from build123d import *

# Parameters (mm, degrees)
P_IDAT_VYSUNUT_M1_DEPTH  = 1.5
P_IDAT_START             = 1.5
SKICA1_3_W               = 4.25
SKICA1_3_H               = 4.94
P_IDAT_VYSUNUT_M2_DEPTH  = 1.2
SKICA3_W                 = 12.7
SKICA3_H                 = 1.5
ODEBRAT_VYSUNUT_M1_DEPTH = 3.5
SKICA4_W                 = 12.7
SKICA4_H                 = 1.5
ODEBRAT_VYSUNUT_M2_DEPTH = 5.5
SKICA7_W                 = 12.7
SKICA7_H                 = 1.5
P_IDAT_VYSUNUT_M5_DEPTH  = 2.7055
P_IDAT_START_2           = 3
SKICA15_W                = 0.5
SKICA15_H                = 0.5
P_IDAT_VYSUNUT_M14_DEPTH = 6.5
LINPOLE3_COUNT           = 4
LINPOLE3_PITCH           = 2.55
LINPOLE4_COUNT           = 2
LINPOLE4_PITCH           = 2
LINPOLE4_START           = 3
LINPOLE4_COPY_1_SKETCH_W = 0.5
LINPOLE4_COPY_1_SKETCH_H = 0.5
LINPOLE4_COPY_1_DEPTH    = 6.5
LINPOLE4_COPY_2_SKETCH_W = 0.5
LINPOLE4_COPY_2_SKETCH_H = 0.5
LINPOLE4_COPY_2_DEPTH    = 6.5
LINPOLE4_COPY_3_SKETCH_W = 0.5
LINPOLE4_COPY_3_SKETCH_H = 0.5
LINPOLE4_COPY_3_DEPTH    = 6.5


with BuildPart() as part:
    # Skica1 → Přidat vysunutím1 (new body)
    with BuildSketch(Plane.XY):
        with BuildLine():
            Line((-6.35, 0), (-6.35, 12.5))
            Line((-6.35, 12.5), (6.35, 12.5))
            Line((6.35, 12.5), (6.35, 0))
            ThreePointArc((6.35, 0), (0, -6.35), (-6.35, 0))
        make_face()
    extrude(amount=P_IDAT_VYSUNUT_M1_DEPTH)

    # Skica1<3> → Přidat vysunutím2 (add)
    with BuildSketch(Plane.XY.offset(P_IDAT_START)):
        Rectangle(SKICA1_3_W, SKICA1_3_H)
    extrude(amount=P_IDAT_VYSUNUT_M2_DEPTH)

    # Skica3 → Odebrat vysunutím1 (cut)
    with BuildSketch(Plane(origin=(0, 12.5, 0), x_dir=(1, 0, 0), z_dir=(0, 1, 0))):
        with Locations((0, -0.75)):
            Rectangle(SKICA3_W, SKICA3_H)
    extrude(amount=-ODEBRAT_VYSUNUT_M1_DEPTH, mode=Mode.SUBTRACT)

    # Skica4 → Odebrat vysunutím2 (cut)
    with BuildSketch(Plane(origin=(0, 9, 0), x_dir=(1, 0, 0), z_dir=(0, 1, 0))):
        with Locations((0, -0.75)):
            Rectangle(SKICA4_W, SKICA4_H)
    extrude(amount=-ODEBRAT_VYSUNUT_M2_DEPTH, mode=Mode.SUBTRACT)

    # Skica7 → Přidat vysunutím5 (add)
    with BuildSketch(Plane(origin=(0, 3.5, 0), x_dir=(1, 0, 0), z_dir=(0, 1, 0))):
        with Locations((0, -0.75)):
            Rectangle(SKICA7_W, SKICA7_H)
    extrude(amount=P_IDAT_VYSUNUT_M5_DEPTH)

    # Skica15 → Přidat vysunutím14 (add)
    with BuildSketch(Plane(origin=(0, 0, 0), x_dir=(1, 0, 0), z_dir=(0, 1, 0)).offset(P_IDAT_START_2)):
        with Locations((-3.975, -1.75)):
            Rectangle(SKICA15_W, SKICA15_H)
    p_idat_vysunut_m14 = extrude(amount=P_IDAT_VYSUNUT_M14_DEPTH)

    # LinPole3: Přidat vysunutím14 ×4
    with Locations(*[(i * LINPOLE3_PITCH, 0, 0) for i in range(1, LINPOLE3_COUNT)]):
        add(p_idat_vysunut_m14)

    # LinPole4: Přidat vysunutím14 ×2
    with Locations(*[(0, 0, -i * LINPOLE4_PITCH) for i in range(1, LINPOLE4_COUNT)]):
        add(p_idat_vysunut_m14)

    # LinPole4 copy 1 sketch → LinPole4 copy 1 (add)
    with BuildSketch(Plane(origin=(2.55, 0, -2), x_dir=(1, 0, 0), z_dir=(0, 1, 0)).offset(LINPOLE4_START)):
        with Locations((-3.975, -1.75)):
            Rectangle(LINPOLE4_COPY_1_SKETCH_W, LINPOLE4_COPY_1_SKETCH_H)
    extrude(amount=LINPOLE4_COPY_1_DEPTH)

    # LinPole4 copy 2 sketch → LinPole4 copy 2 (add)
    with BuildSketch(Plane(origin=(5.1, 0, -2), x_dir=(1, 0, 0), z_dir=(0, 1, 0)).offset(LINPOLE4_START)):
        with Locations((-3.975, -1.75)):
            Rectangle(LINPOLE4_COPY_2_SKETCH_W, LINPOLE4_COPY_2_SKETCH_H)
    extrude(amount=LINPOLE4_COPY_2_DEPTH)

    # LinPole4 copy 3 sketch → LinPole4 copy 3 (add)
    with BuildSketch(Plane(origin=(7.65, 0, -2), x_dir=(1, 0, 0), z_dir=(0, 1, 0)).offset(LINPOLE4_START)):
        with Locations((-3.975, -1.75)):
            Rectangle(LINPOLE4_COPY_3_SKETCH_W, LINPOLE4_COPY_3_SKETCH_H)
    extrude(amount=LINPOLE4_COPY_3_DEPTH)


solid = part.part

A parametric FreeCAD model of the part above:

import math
import FreeCAD as App
import Part
import Sketcher
from FreeCAD import Vector
Q = App.Units.Quantity

doc = App.newDocument("Part")
body = doc.addObject("PartDesign::Body", "Body")

# Sketch on XY plane
sketch1 = body.newObject("Sketcher::SketchObject", "Sketch")
sketch1.AttachmentSupport = (doc.getObject("XY_Plane"), [""])
sketch1.MapMode = "FlatFace"
sketch1.addGeometry(Part.LineSegment(Vector(-6, 12, 0), Vector(-6, 0, 0)), False)
sketch1.addGeometry(Part.ArcOfCircle(Part.Circle(Vector(0, 0, 0), Vector(0, 0, 1), 6), math.radians(180), math.radians(360)), False)
sketch1.addGeometry(Part.LineSegment(Vector(6, 0, 0), Vector(6, 12, 0)), False)
sketch1.addGeometry(Part.LineSegment(Vector(6, 12, 0), Vector(-6, 12, 0)), False)
sketch1.addConstraint(Sketcher.Constraint("Tangent", 0, 2, 1, 1))
sketch1.addConstraint(Sketcher.Constraint("Tangent", 1, 2, 2, 1))
sketch1.addConstraint(Sketcher.Constraint("Coincident", 2, 2, 3, 1))
sketch1.addConstraint(Sketcher.Constraint("Coincident", 3, 2, 0, 1))
sketch1.addConstraint(Sketcher.Constraint("Vertical", 0))
sketch1.addConstraint(Sketcher.Constraint("Vertical", 2))
sketch1.addConstraint(Sketcher.Constraint("Horizontal", 3))
sketch1.addConstraint(Sketcher.Constraint("Coincident", 1, 3, -1, 1))
sketch1.addConstraint(Sketcher.Constraint("Radius", 1, Q("6.35 mm")))
sketch1.addConstraint(Sketcher.Constraint("DistanceY", 0, 2, 0, 1, Q("12.5 mm")))
pad1 = body.newObject("PartDesign::Pad", "Pad")
pad1.Profile = sketch1
pad1.Length = 1.5

# Sketch on XY plane
sketch2 = body.newObject("Sketcher::SketchObject", "Sketch001")
sketch2.AttachmentSupport = (doc.getObject("XY_Plane"), [""])
sketch2.MapMode = "FlatFace"
sketch2.AttachmentOffset = App.Placement(Vector(0, 0, 1.5), App.Rotation())
sketch2.addGeometry(Part.LineSegment(Vector(-2.1, 2.5, 0), Vector(-2.1, -2.5, 0)), False)
sketch2.addGeometry(Part.LineSegment(Vector(-2.1, -2.5, 0), Vector(2.1, -2.5, 0)), False)
sketch2.addGeometry(Part.LineSegment(Vector(2.1, -2.5, 0), Vector(2.1, 2.5, 0)), False)
sketch2.addGeometry(Part.LineSegment(Vector(2.1, 2.5, 0), Vector(-2.1, 2.5, 0)), False)
sketch2.addConstraint(Sketcher.Constraint("Coincident", 0, 2, 1, 1))
sketch2.addConstraint(Sketcher.Constraint("Coincident", 1, 2, 2, 1))
sketch2.addConstraint(Sketcher.Constraint("Coincident", 2, 2, 3, 1))
sketch2.addConstraint(Sketcher.Constraint("Coincident", 3, 2, 0, 1))
sketch2.addConstraint(Sketcher.Constraint("Vertical", 0))
sketch2.addConstraint(Sketcher.Constraint("Horizontal", 1))
sketch2.addConstraint(Sketcher.Constraint("Vertical", 2))
sketch2.addConstraint(Sketcher.Constraint("Horizontal", 3))
sketch2.addConstraint(Sketcher.Constraint("Symmetric", 0, 2, 2, 2, -1, 1))
sketch2.addConstraint(Sketcher.Constraint("DistanceX", 1, 1, 1, 2, Q("4.25 mm")))
sketch2.addConstraint(Sketcher.Constraint("DistanceY", 0, 2, 0, 1, Q("4.94 mm")))
pad2 = body.newObject("PartDesign::Pad", "Pad001")
pad2.Profile = sketch2
pad2.Length = 1.2

# Sketch on XZ plane
sketch3 = body.newObject("Sketcher::SketchObject", "Sketch002")
sketch3.AttachmentSupport = (doc.getObject("XZ_Plane"), [""])
sketch3.MapMode = "FlatFace"
sketch3.AttachmentOffset = App.Placement(Vector(0, 0, -12.5), App.Rotation())
sketch3.addGeometry(Part.LineSegment(Vector(-6.3, 0, 0), Vector(-6.3, 1.5, 0)), False)
sketch3.addGeometry(Part.LineSegment(Vector(-6.3, 1.5, 0), Vector(6.3, 1.5, 0)), False)
sketch3.addGeometry(Part.LineSegment(Vector(6.3, 1.5, 0), Vector(6.3, 0, 0)), False)
sketch3.addGeometry(Part.LineSegment(Vector(6.3, 0, 0), Vector(-6.3, 0, 0)), False)
sketch3.addConstraint(Sketcher.Constraint("Coincident", 0, 2, 1, 1))
sketch3.addConstraint(Sketcher.Constraint("Coincident", 1, 2, 2, 1))
sketch3.addConstraint(Sketcher.Constraint("Coincident", 2, 2, 3, 1))
sketch3.addConstraint(Sketcher.Constraint("Coincident", 3, 2, 0, 1))
sketch3.addConstraint(Sketcher.Constraint("Vertical", 0))
sketch3.addConstraint(Sketcher.Constraint("Horizontal", 1))
sketch3.addConstraint(Sketcher.Constraint("Vertical", 2))
sketch3.addConstraint(Sketcher.Constraint("Horizontal", 3))
sketch3.addConstraint(Sketcher.Constraint("Symmetric", 2, 2, 3, 2, -1, 1))
sketch3.addConstraint(Sketcher.Constraint("DistanceX", 1, 1, 1, 2, Q("12.7 mm")))
sketch3.addConstraint(Sketcher.Constraint("DistanceY", 0, 1, 0, 2, Q("1.5 mm")))
pocket1 = body.newObject("PartDesign::Pocket", "Pocket")
pocket1.Profile = sketch3
pocket1.Length = 3.5
pocket1.Reversed = True

# Sketch on XZ plane
sketch4 = body.newObject("Sketcher::SketchObject", "Sketch003")
sketch4.AttachmentSupport = (doc.getObject("XZ_Plane"), [""])
sketch4.MapMode = "FlatFace"
sketch4.AttachmentOffset = App.Placement(Vector(0, 0, -9), App.Rotation())
sketch4.addGeometry(Part.LineSegment(Vector(-6.3, 0, 0), Vector(-6.3, 1.5, 0)), False)
sketch4.addGeometry(Part.LineSegment(Vector(-6.3, 1.5, 0), Vector(6.3, 1.5, 0)), False)
sketch4.addGeometry(Part.LineSegment(Vector(6.3, 1.5, 0), Vector(6.3, 0, 0)), False)
sketch4.addGeometry(Part.LineSegment(Vector(6.3, 0, 0), Vector(-6.3, 0, 0)), False)
sketch4.addConstraint(Sketcher.Constraint("Coincident", 0, 2, 1, 1))
sketch4.addConstraint(Sketcher.Constraint("Coincident", 1, 2, 2, 1))
sketch4.addConstraint(Sketcher.Constraint("Coincident", 2, 2, 3, 1))
sketch4.addConstraint(Sketcher.Constraint("Coincident", 3, 2, 0, 1))
sketch4.addConstraint(Sketcher.Constraint("Vertical", 0))
sketch4.addConstraint(Sketcher.Constraint("Horizontal", 1))
sketch4.addConstraint(Sketcher.Constraint("Vertical", 2))
sketch4.addConstraint(Sketcher.Constraint("Horizontal", 3))
sketch4.addConstraint(Sketcher.Constraint("Symmetric", 2, 2, 3, 2, -1, 1))
sketch4.addConstraint(Sketcher.Constraint("DistanceX", 1, 1, 1, 2, Q("12.7 mm")))
sketch4.addConstraint(Sketcher.Constraint("DistanceY", 0, 1, 0, 2, Q("1.5 mm")))
pocket2 = body.newObject("PartDesign::Pocket", "Pocket001")
pocket2.Profile = sketch4
pocket2.Length = 5.5
pocket2.Reversed = True

# Sketch on XZ plane
sketch5 = body.newObject("Sketcher::SketchObject", "Sketch004")
sketch5.AttachmentSupport = (doc.getObject("XZ_Plane"), [""])
sketch5.MapMode = "FlatFace"
sketch5.AttachmentOffset = App.Placement(Vector(0, 0, -3.5), App.Rotation())
sketch5.addGeometry(Part.LineSegment(Vector(-6.3, 0, 0), Vector(-6.3, 1.5, 0)), False)
sketch5.addGeometry(Part.LineSegment(Vector(-6.3, 1.5, 0), Vector(6.3, 1.5, 0)), False)
sketch5.addGeometry(Part.LineSegment(Vector(6.3, 1.5, 0), Vector(6.3, 0, 0)), False)
sketch5.addGeometry(Part.LineSegment(Vector(6.3, 0, 0), Vector(-6.3, 0, 0)), False)
sketch5.addConstraint(Sketcher.Constraint("Coincident", 0, 2, 1, 1))
sketch5.addConstraint(Sketcher.Constraint("Coincident", 1, 2, 2, 1))
sketch5.addConstraint(Sketcher.Constraint("Coincident", 2, 2, 3, 1))
sketch5.addConstraint(Sketcher.Constraint("Coincident", 3, 2, 0, 1))
sketch5.addConstraint(Sketcher.Constraint("Vertical", 0))
sketch5.addConstraint(Sketcher.Constraint("Horizontal", 1))
sketch5.addConstraint(Sketcher.Constraint("Vertical", 2))
sketch5.addConstraint(Sketcher.Constraint("Horizontal", 3))
sketch5.addConstraint(Sketcher.Constraint("Symmetric", 2, 2, 3, 2, -1, 1))
sketch5.addConstraint(Sketcher.Constraint("DistanceX", 1, 1, 1, 2, Q("12.7 mm")))
sketch5.addConstraint(Sketcher.Constraint("DistanceY", 0, 1, 0, 2, Q("1.5 mm")))
pad3 = body.newObject("PartDesign::Pad", "Pad002")
pad3.Profile = sketch5
pad3.Length = 2.7055
pad3.Reversed = True

# Sketch on XZ plane
sketch6 = body.newObject("Sketcher::SketchObject", "Sketch005")
sketch6.AttachmentSupport = (doc.getObject("XZ_Plane"), [""])
sketch6.MapMode = "FlatFace"
sketch6.AttachmentOffset = App.Placement(Vector(0, 0, -3), App.Rotation())
sketch6.addGeometry(Part.LineSegment(Vector(-4.22, 1.5, 0), Vector(-4.22, 2, 0)), False)
sketch6.addGeometry(Part.LineSegment(Vector(-4.22, 2, 0), Vector(-3.73, 2, 0)), False)
sketch6.addGeometry(Part.LineSegment(Vector(-3.73, 2, 0), Vector(-3.73, 1.5, 0)), False)
sketch6.addGeometry(Part.LineSegment(Vector(-3.73, 1.5, 0), Vector(-4.22, 1.5, 0)), False)
sketch6.addConstraint(Sketcher.Constraint("Coincident", 0, 2, 1, 1))
sketch6.addConstraint(Sketcher.Constraint("Coincident", 1, 2, 2, 1))
sketch6.addConstraint(Sketcher.Constraint("Coincident", 2, 2, 3, 1))
sketch6.addConstraint(Sketcher.Constraint("Coincident", 3, 2, 0, 1))
sketch6.addConstraint(Sketcher.Constraint("Vertical", 0))
sketch6.addConstraint(Sketcher.Constraint("Horizontal", 1))
sketch6.addConstraint(Sketcher.Constraint("Vertical", 2))
sketch6.addConstraint(Sketcher.Constraint("Horizontal", 3))
sketch6.addConstraint(Sketcher.Constraint("Equal", 3, 0))
sketch6.addConstraint(Sketcher.Constraint("DistanceX", 1, 1, 1, 2, Q("0.5 mm")))
sketch6.addConstraint(Sketcher.Constraint("DistanceY", -1, 1, 0, 2, Q("2 mm")))
sketch6.addConstraint(Sketcher.Constraint("DistanceX", 0, 2, -1, 1, Q("4.225 mm")))
pad4 = body.newObject("PartDesign::Pad", "Pad003")
pad4.Profile = sketch6
pad4.Length = 6.5
pad4.Reversed = True
doc.recompute()

linearpattern = body.newObject("PartDesign::LinearPattern", "LinearPattern")
linearpattern.Originals = [pad4]
linearpattern.Direction = (doc.getObject("X_Axis"), [""])
linearpattern.Mode = "offset"
linearpattern.Offset = 2.55
linearpattern.Occurrences = 4
body.Tip = linearpattern
doc.recompute()

linearpattern2 = body.newObject("PartDesign::LinearPattern", "LinearPattern001")
linearpattern2.Originals = [pad4]
linearpattern2.Direction = (doc.getObject("Z_Axis"), [""])
linearpattern2.Mode = "offset"
linearpattern2.Offset = 2
linearpattern2.Occurrences = 2
linearpattern2.Reversed = True
body.Tip = linearpattern2

# Sketch on XZ plane
sketch7 = body.newObject("Sketcher::SketchObject", "Sketch006")
sketch7.AttachmentSupport = (doc.getObject("XZ_Plane"), [""])
sketch7.MapMode = "FlatFace"
sketch7.AttachmentOffset = App.Placement(Vector(0, 0, -3), App.Rotation())
sketch7.addGeometry(Part.LineSegment(Vector(-1.7, -0.5, 0), Vector(-1.7, 0, 0)), False)
sketch7.addGeometry(Part.LineSegment(Vector(-1.7, 0, 0), Vector(-1.2, 0, 0)), False)
sketch7.addGeometry(Part.LineSegment(Vector(-1.2, 0, 0), Vector(-1.2, -0.5, 0)), False)
sketch7.addGeometry(Part.LineSegment(Vector(-1.2, -0.5, 0), Vector(-1.7, -0.5, 0)), False)
sketch7.addConstraint(Sketcher.Constraint("Coincident", 0, 2, 1, 1))
sketch7.addConstraint(Sketcher.Constraint("Coincident", 1, 2, 2, 1))
sketch7.addConstraint(Sketcher.Constraint("Coincident", 2, 2, 3, 1))
sketch7.addConstraint(Sketcher.Constraint("Coincident", 3, 2, 0, 1))
sketch7.addConstraint(Sketcher.Constraint("Vertical", 0))
sketch7.addConstraint(Sketcher.Constraint("Horizontal", 1))
sketch7.addConstraint(Sketcher.Constraint("Vertical", 2))
sketch7.addConstraint(Sketcher.Constraint("Horizontal", 3))
sketch7.addConstraint(Sketcher.Constraint("PointOnObject", 0, 2, -1))
sketch7.addConstraint(Sketcher.Constraint("Equal", 3, 0))
sketch7.addConstraint(Sketcher.Constraint("DistanceX", 1, 1, 1, 2, Q("0.5 mm")))
sketch7.addConstraint(Sketcher.Constraint("DistanceX", 0, 2, -1, 1, Q("1.675 mm")))
pad5 = body.newObject("PartDesign::Pad", "Pad004")
pad5.Profile = sketch7
pad5.Length = 6.5
pad5.Reversed = True

# Sketch on XZ plane
sketch8 = body.newObject("Sketcher::SketchObject", "Sketch007")
sketch8.AttachmentSupport = (doc.getObject("XZ_Plane"), [""])
sketch8.MapMode = "FlatFace"
sketch8.AttachmentOffset = App.Placement(Vector(0, 0, -3), App.Rotation())
sketch8.addGeometry(Part.LineSegment(Vector(0.9, -0.5, 0), Vector(0.9, 0, 0)), False)
sketch8.addGeometry(Part.LineSegment(Vector(0.9, 0, 0), Vector(1.4, 0, 0)), False)
sketch8.addGeometry(Part.LineSegment(Vector(1.4, 0, 0), Vector(1.4, -0.5, 0)), False)
sketch8.addGeometry(Part.LineSegment(Vector(1.4, -0.5, 0), Vector(0.9, -0.5, 0)), False)
sketch8.addConstraint(Sketcher.Constraint("Coincident", 0, 2, 1, 1))
sketch8.addConstraint(Sketcher.Constraint("Coincident", 1, 2, 2, 1))
sketch8.addConstraint(Sketcher.Constraint("Coincident", 2, 2, 3, 1))
sketch8.addConstraint(Sketcher.Constraint("Coincident", 3, 2, 0, 1))
sketch8.addConstraint(Sketcher.Constraint("Vertical", 0))
sketch8.addConstraint(Sketcher.Constraint("Horizontal", 1))
sketch8.addConstraint(Sketcher.Constraint("Vertical", 2))
sketch8.addConstraint(Sketcher.Constraint("Horizontal", 3))
sketch8.addConstraint(Sketcher.Constraint("PointOnObject", 0, 2, -1))
sketch8.addConstraint(Sketcher.Constraint("Equal", 3, 0))
sketch8.addConstraint(Sketcher.Constraint("DistanceX", 1, 1, 1, 2, Q("0.5 mm")))
sketch8.addConstraint(Sketcher.Constraint("DistanceX", -1, 1, 0, 2, Q("0.875 mm")))
pad6 = body.newObject("PartDesign::Pad", "Pad005")
pad6.Profile = sketch8
pad6.Length = 6.5
pad6.Reversed = True

# Sketch on XZ plane
sketch9 = body.newObject("Sketcher::SketchObject", "Sketch008")
sketch9.AttachmentSupport = (doc.getObject("XZ_Plane"), [""])
sketch9.MapMode = "FlatFace"
sketch9.AttachmentOffset = App.Placement(Vector(0, 0, -3), App.Rotation())
sketch9.addGeometry(Part.LineSegment(Vector(3.4, -0.5, 0), Vector(3.4, 0, 0)), False)
sketch9.addGeometry(Part.LineSegment(Vector(3.4, 0, 0), Vector(3.9, 0, 0)), False)
sketch9.addGeometry(Part.LineSegment(Vector(3.9, 0, 0), Vector(3.9, -0.5, 0)), False)
sketch9.addGeometry(Part.LineSegment(Vector(3.9, -0.5, 0), Vector(3.4, -0.5, 0)), False)
sketch9.addConstraint(Sketcher.Constraint("Coincident", 0, 2, 1, 1))
sketch9.addConstraint(Sketcher.Constraint("Coincident", 1, 2, 2, 1))
sketch9.addConstraint(Sketcher.Constraint("Coincident", 2, 2, 3, 1))
sketch9.addConstraint(Sketcher.Constraint("Coincident", 3, 2, 0, 1))
sketch9.addConstraint(Sketcher.Constraint("Vertical", 0))
sketch9.addConstraint(Sketcher.Constraint("Horizontal", 1))
sketch9.addConstraint(Sketcher.Constraint("Vertical", 2))
sketch9.addConstraint(Sketcher.Constraint("Horizontal", 3))
sketch9.addConstraint(Sketcher.Constraint("PointOnObject", 0, 2, -1))
sketch9.addConstraint(Sketcher.Constraint("Equal", 3, 0))
sketch9.addConstraint(Sketcher.Constraint("DistanceX", 1, 1, 1, 2, Q("0.5 mm")))
sketch9.addConstraint(Sketcher.Constraint("DistanceX", -1, 1, 0, 2, Q("3.425 mm")))
pad7 = body.newObject("PartDesign::Pad", "Pad006")
pad7.Profile = sketch9
pad7.Length = 6.5
pad7.Reversed = True

doc.recompute()
